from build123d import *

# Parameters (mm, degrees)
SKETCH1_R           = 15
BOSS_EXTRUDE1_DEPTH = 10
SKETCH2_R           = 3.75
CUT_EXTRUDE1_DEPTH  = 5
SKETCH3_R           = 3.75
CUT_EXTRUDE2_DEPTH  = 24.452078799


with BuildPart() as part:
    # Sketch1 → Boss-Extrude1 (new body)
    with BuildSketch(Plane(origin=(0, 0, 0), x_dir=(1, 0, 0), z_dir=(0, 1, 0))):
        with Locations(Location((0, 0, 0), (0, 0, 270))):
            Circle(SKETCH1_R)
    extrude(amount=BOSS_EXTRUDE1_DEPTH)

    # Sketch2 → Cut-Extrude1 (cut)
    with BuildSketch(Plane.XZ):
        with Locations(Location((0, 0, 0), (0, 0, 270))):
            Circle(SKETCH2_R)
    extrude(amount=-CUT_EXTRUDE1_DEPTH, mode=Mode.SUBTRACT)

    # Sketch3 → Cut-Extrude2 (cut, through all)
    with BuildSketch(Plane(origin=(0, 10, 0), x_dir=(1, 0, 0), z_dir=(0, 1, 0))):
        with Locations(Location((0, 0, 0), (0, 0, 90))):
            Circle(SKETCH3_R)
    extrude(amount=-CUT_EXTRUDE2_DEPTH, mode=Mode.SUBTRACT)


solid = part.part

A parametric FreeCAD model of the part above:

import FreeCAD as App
import Part
import Sketcher
Q = App.Units.Quantity

doc = App.newDocument("Part")
body = doc.addObject("PartDesign::Body", "Body")

sketch1 = body.newObject("Sketcher::SketchObject", "Sketch")
sketch1.AttachmentSupport = (doc.getObject("XZ_Plane"), [""])
sketch1.MapMode = "FlatFace"
sketch1.addGeometry(Part.Circle(App.Vector(0, 0, 0), App.Vector(0, 0, 1), 15), False)
sketch1.addConstraint([
    Sketcher.Constraint("Coincident", 0, 3, -1, 1),
    Sketcher.Constraint("Diameter", 0, Q("30 mm")),
])
pad1 = body.newObject("PartDesign::Pad", "Pad")
pad1.Profile = sketch1
pad1.Length = 10
pad1.Reversed = True

sketch2 = body.newObject("Sketcher::SketchObject", "Sketch001")
sketch2.AttachmentSupport = (doc.getObject("XZ_Plane"), [""])
sketch2.MapMode = "FlatFace"
sketch2.addGeometry(Part.Circle(App.Vector(0, 0, 0), App.Vector(0, 0, 1), 3.8), False)
sketch2.addConstraint([
    Sketcher.Constraint("Coincident", 0, 3, -1, 1),
    Sketcher.Constraint("Diameter", 0, Q("7.5 mm")),
])
pocket1 = body.newObject("PartDesign::Pocket", "Pocket")
pocket1.Profile = sketch2
pocket1.Length = 5

sketch3 = body.newObject("Sketcher::SketchObject", "Sketch002")
sketch3.AttachmentSupport = (doc.getObject("XZ_Plane"), [""])
sketch3.MapMode = "FlatFace"
sketch3.AttachmentOffset = App.Placement(App.Vector(0, 0, -10), App.Rotation())
sketch3.addGeometry(Part.Circle(App.Vector(0, 0, 0), App.Vector(0, 0, 1), 3.8), False)
sketch3.addConstraint([
    Sketcher.Constraint("Coincident", 0, 3, -1, 1),
    Sketcher.Constraint("Diameter", 0, Q("7.5 mm")),
])
pocket2 = body.newObject("PartDesign::Pocket", "Pocket001")
pocket2.Profile = sketch3
pocket2.Type = "ThroughAll"
pocket2.Reversed = True

doc.recompute()
